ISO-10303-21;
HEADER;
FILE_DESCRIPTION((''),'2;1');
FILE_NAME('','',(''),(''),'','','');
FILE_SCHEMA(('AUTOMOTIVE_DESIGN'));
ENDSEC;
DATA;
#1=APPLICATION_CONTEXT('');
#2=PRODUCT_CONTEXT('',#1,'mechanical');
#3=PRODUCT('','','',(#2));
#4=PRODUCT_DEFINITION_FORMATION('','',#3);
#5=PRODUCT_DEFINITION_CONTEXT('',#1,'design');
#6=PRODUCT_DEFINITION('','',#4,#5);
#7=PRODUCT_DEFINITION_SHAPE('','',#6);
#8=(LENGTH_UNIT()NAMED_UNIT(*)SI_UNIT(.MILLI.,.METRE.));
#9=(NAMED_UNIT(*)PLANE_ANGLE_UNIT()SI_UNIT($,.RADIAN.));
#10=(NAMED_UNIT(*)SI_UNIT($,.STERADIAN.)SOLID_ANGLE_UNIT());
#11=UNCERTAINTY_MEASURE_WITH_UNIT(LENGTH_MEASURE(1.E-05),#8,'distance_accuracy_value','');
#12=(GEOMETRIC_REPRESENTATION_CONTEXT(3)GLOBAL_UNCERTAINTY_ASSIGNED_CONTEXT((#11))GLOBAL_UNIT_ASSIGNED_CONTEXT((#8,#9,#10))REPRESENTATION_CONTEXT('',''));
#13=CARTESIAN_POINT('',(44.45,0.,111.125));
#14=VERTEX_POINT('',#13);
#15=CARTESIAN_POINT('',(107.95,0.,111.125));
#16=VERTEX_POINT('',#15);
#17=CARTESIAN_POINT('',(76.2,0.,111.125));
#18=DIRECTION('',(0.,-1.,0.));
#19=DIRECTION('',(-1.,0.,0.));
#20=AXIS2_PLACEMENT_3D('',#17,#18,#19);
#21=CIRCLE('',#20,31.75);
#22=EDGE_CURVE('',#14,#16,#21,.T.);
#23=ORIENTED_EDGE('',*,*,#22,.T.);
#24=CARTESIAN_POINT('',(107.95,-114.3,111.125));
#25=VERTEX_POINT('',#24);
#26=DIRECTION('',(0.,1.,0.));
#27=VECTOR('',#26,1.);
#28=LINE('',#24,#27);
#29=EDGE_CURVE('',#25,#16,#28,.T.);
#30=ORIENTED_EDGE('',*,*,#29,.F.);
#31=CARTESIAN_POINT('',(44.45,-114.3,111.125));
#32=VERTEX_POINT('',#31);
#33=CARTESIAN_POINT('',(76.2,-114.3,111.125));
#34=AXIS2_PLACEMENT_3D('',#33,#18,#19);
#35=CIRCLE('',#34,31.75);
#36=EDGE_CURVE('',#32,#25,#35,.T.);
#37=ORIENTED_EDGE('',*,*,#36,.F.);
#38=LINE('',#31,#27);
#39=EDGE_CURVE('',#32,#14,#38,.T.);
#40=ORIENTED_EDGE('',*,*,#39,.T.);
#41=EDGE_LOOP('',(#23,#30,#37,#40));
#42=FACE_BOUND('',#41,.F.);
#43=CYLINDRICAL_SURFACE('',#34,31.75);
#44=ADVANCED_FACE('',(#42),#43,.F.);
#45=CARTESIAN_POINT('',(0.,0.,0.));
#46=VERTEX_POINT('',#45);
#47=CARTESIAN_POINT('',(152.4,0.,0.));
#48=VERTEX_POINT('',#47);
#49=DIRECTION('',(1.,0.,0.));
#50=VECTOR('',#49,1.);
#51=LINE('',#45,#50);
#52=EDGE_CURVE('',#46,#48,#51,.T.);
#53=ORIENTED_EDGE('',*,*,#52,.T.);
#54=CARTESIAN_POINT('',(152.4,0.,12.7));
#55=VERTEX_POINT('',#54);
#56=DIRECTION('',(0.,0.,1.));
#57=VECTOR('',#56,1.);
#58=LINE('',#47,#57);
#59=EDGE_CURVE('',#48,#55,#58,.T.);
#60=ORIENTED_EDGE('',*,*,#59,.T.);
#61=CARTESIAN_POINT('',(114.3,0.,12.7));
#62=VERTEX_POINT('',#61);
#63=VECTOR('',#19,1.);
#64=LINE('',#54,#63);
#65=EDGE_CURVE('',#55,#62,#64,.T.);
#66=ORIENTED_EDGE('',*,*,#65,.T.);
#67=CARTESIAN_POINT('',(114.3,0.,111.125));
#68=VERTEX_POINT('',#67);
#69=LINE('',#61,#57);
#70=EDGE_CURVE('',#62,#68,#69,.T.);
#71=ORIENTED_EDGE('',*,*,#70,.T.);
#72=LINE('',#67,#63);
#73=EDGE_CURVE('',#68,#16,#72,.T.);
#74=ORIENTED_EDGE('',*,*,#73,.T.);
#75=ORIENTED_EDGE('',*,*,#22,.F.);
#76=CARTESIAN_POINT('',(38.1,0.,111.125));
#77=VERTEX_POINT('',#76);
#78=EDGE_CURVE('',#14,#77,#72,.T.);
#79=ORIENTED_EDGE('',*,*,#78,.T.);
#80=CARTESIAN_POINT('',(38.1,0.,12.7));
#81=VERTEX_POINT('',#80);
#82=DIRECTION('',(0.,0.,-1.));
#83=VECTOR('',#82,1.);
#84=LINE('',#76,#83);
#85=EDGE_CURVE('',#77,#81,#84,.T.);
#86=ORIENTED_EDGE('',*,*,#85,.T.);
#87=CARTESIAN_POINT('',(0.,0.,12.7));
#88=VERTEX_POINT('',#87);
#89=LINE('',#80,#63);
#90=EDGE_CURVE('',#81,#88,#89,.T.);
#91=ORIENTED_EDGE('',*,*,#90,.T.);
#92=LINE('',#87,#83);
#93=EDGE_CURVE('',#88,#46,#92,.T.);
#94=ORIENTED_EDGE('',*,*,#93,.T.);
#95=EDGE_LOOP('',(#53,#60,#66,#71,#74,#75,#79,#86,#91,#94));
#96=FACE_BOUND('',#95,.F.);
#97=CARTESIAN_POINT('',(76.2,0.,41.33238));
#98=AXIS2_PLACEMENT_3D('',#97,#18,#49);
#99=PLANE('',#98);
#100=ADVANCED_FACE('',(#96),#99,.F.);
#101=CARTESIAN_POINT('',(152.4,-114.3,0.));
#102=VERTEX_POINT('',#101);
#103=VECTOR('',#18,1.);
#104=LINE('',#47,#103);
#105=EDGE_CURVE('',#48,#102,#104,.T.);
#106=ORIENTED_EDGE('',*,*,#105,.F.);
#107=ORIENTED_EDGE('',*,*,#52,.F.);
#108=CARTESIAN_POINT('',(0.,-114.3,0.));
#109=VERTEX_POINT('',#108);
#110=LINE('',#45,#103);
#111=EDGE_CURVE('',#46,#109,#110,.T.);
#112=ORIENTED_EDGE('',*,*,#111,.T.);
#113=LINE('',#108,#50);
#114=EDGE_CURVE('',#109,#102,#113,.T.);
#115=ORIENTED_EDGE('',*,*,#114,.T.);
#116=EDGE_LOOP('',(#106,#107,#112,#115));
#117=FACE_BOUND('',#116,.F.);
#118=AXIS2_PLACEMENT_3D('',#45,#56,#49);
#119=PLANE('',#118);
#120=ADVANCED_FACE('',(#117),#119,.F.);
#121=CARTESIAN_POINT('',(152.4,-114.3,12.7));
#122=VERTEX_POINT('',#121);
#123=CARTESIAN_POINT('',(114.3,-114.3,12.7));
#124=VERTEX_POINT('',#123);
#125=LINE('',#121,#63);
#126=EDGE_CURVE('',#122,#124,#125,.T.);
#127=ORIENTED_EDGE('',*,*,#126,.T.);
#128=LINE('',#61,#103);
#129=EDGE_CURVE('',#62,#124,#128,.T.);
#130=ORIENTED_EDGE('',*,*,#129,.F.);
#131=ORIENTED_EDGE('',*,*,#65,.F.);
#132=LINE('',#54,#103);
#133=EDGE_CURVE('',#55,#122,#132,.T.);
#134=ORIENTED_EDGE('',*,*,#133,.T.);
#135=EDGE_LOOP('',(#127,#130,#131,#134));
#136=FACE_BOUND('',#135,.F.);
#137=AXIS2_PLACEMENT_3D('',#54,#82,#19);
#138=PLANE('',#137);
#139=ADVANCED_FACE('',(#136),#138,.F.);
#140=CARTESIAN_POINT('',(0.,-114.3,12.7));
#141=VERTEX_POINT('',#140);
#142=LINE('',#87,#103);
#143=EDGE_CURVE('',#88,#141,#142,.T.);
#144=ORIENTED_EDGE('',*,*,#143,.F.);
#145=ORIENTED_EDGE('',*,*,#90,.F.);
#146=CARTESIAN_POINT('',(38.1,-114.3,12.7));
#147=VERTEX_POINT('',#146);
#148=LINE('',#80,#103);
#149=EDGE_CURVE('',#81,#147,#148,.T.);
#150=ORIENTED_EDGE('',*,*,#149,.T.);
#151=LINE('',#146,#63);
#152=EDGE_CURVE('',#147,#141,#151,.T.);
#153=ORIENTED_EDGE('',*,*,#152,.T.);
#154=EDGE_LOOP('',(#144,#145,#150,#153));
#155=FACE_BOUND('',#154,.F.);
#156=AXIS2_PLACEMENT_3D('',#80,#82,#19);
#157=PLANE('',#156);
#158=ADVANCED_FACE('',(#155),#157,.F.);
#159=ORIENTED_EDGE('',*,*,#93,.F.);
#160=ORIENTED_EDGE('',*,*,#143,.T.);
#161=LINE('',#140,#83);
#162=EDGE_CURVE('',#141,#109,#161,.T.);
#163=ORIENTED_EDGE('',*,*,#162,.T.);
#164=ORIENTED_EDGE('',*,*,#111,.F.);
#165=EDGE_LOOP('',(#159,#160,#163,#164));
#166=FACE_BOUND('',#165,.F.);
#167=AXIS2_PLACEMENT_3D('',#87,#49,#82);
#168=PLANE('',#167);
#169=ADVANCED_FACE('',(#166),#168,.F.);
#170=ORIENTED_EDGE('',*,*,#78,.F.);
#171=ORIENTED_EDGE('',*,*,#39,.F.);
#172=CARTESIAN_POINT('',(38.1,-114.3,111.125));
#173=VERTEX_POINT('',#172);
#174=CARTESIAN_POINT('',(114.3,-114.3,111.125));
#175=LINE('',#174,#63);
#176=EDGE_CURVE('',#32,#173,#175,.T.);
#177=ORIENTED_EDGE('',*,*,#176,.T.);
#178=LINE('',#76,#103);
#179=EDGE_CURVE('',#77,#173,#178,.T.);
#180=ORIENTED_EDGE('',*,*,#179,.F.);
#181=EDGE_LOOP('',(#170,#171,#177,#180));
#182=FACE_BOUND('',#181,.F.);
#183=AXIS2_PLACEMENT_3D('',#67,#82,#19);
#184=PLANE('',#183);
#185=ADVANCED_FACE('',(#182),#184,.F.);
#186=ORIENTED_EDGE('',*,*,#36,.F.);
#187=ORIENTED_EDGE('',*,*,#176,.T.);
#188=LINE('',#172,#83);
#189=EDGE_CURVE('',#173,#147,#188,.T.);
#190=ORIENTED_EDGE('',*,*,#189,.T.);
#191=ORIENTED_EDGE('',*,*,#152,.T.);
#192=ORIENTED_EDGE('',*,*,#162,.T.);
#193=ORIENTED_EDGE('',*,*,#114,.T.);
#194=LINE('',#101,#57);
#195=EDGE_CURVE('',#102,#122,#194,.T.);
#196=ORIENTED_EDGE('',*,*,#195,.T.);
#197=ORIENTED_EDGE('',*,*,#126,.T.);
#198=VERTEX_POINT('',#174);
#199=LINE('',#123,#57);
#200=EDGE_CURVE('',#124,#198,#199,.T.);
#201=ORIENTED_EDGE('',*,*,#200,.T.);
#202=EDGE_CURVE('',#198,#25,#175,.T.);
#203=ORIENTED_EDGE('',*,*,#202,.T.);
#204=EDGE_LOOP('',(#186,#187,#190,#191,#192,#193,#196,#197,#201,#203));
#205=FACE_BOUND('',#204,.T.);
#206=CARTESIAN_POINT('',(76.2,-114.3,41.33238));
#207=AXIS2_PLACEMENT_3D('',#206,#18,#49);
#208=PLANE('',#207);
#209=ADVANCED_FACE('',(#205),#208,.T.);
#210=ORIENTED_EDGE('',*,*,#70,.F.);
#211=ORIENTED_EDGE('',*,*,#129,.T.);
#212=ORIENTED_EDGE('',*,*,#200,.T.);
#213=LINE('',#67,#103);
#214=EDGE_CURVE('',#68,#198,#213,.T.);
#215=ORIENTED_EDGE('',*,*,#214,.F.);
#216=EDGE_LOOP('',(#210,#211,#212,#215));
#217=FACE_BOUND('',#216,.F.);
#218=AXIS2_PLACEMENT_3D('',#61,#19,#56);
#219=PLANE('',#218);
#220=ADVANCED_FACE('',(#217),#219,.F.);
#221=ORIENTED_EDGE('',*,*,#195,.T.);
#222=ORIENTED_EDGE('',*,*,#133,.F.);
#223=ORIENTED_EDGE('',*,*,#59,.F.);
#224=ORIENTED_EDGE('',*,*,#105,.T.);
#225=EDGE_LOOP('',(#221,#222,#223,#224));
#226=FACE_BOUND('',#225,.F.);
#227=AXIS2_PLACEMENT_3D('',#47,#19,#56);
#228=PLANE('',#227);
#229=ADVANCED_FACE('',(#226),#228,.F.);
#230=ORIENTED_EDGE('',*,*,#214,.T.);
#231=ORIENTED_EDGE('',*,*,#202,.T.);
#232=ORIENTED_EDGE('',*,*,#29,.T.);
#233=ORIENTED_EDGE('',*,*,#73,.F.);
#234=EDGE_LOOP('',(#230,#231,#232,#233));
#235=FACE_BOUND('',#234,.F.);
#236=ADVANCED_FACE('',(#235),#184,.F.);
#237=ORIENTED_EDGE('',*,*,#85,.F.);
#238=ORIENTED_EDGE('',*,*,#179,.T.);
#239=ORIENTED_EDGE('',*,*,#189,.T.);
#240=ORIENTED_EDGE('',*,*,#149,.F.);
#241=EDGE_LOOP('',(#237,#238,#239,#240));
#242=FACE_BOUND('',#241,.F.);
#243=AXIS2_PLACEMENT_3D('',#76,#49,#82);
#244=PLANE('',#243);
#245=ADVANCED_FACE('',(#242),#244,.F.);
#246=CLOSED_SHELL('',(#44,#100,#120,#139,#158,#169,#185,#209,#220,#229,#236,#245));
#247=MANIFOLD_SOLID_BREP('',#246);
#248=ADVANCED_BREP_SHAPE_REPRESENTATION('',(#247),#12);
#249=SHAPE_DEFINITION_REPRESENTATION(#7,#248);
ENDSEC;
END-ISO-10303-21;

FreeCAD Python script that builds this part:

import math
import FreeCAD as App
import Part
import Sketcher
Q = App.Units.Quantity

doc = App.newDocument("Part")
body = doc.addObject("PartDesign::Body", "Body")

# Sketch on XZ plane
sketch1 = body.newObject("Sketcher::SketchObject", "Sketch")
sketch1.AttachmentSupport = (doc.getObject("XZ_Plane"), [""])
sketch1.MapMode = "FlatFace"
sketch1.addGeometry(Part.LineSegment(App.Vector(0, 12.7, 0), App.Vector(0, 0, 0)), False)
sketch1.addGeometry(Part.LineSegment(App.Vector(0, 0, 0), App.Vector(152.4, 0, 0)), False)
sketch1.addGeometry(Part.LineSegment(App.Vector(152.4, 0, 0), App.Vector(152.4, 12.7, 0)), False)
sketch1.addGeometry(Part.LineSegment(App.Vector(152.4, 12.7, 0), App.Vector(114.3, 12.7, 0)), False)
sketch1.addGeometry(Part.LineSegment(App.Vector(114.3, 12.7, 0), App.Vector(114.3, 111.125, 0)), False)
sketch1.addGeometry(Part.LineSegment(App.Vector(114.3, 111.125, 0), App.Vector(38.1, 111.125, 0)), False)
sketch1.addGeometry(Part.LineSegment(App.Vector(38.1, 111.125, 0), App.Vector(38.1, 12.7, 0)), False)
sketch1.addGeometry(Part.LineSegment(App.Vector(38.1, 12.7, 0), App.Vector(0, 12.7, 0)), False)
sketch1.addConstraint(Sketcher.Constraint("Coincident", 0, 2, 1, 1))
sketch1.addConstraint(Sketcher.Constraint("Coincident", 1, 2, 2, 1))
sketch1.addConstraint(Sketcher.Constraint("Coincident", 2, 2, 3, 1))
sketch1.addConstraint(Sketcher.Constraint("Coincident", 3, 2, 4, 1))
sketch1.addConstraint(Sketcher.Constraint("Coincident", 4, 2, 5, 1))
sketch1.addConstraint(Sketcher.Constraint("Coincident", 5, 2, 6, 1))
sketch1.addConstraint(Sketcher.Constraint("Coincident", 6, 2, 7, 1))
sketch1.addConstraint(Sketcher.Constraint("Coincident", 7, 2, 0, 1))
sketch1.addConstraint(Sketcher.Constraint("Vertical", 0))
sketch1.addConstraint(Sketcher.Constraint("Horizontal", 1))
sketch1.addConstraint(Sketcher.Constraint("Vertical", 2))
sketch1.addConstraint(Sketcher.Constraint("Horizontal", 3))
sketch1.addConstraint(Sketcher.Constraint("Vertical", 4))
sketch1.addConstraint(Sketcher.Constraint("Horizontal", 5))
sketch1.addConstraint(Sketcher.Constraint("Vertical", 6))
sketch1.addConstraint(Sketcher.Constraint("Horizontal", 7))
sketch1.addConstraint(Sketcher.Constraint("Coincident", 0, 2, -1, 1))
sketch1.addConstraint(Sketcher.Constraint("Horizontal", 3, 2, 6, 2))
sketch1.addConstraint(Sketcher.Constraint("Equal", 3, 7))
sketch1.addConstraint(Sketcher.Constraint("DistanceX", 1, 1, 1, 2, Q("6 in")))
sketch1.addConstraint(Sketcher.Constraint("DistanceX", 5, 2, 5, 1, Q("3 in")))
sketch1.addConstraint(Sketcher.Constraint("DistanceY", 0, 2, 0, 1, Q("0.5 in")))
sketch1.addConstraint(Sketcher.Constraint("DistanceY", 4, 1, 4, 2, Q("3.875 in")))
pad1 = body.newObject("PartDesign::Pad", "Pad")
pad1.Profile = sketch1
pad1.Length = Q("4.5 in")

# Sketch on XZ plane
sketch2 = body.newObject("Sketcher::SketchObject", "Sketch001")
sketch2.AttachmentSupport = (doc.getObject("XZ_Plane"), [""])
sketch2.MapMode = "FlatFace"
sketch2.AttachmentOffset = App.Placement(App.Vector(0, 0, 4.5 * 25.4), App.Rotation())
sketch2.addGeometry(Part.LineSegment(App.Vector(107.95, 111.125, 0), App.Vector(44.45, 111.125, 0)), False)
sketch2.addGeometry(Part.ArcOfCircle(Part.Circle(App.Vector(76.2, 111.125, 0), App.Vector(0, 0, 1), 31.75), math.radians(180), math.radians(360)), False)
sketch2.addConstraint(Sketcher.Constraint("Coincident", 0, 1, 1, 2))
sketch2.addConstraint(Sketcher.Constraint("Coincident", 1, 1, 0, 2))
sketch2.addConstraint(Sketcher.Constraint("Horizontal", 0))
sketch2.addConstraint(Sketcher.Constraint("Horizontal", 1, 3, 0, 1))
sketch2.addConstraint(Sketcher.Constraint("Radius", 1, Q("1.25 in")))
sketch2.addConstraint(Sketcher.Constraint("DistanceX", -1, 1, 1, 3, Q("3 in")))
sketch2.addConstraint(Sketcher.Constraint("DistanceY", -1, 1, 1, 3, Q("4.375 in")))
pocket1 = body.newObject("PartDesign::Pocket", "Pocket")
pocket1.Profile = sketch2
pocket1.Type = "ThroughAll"

doc.recompute()
